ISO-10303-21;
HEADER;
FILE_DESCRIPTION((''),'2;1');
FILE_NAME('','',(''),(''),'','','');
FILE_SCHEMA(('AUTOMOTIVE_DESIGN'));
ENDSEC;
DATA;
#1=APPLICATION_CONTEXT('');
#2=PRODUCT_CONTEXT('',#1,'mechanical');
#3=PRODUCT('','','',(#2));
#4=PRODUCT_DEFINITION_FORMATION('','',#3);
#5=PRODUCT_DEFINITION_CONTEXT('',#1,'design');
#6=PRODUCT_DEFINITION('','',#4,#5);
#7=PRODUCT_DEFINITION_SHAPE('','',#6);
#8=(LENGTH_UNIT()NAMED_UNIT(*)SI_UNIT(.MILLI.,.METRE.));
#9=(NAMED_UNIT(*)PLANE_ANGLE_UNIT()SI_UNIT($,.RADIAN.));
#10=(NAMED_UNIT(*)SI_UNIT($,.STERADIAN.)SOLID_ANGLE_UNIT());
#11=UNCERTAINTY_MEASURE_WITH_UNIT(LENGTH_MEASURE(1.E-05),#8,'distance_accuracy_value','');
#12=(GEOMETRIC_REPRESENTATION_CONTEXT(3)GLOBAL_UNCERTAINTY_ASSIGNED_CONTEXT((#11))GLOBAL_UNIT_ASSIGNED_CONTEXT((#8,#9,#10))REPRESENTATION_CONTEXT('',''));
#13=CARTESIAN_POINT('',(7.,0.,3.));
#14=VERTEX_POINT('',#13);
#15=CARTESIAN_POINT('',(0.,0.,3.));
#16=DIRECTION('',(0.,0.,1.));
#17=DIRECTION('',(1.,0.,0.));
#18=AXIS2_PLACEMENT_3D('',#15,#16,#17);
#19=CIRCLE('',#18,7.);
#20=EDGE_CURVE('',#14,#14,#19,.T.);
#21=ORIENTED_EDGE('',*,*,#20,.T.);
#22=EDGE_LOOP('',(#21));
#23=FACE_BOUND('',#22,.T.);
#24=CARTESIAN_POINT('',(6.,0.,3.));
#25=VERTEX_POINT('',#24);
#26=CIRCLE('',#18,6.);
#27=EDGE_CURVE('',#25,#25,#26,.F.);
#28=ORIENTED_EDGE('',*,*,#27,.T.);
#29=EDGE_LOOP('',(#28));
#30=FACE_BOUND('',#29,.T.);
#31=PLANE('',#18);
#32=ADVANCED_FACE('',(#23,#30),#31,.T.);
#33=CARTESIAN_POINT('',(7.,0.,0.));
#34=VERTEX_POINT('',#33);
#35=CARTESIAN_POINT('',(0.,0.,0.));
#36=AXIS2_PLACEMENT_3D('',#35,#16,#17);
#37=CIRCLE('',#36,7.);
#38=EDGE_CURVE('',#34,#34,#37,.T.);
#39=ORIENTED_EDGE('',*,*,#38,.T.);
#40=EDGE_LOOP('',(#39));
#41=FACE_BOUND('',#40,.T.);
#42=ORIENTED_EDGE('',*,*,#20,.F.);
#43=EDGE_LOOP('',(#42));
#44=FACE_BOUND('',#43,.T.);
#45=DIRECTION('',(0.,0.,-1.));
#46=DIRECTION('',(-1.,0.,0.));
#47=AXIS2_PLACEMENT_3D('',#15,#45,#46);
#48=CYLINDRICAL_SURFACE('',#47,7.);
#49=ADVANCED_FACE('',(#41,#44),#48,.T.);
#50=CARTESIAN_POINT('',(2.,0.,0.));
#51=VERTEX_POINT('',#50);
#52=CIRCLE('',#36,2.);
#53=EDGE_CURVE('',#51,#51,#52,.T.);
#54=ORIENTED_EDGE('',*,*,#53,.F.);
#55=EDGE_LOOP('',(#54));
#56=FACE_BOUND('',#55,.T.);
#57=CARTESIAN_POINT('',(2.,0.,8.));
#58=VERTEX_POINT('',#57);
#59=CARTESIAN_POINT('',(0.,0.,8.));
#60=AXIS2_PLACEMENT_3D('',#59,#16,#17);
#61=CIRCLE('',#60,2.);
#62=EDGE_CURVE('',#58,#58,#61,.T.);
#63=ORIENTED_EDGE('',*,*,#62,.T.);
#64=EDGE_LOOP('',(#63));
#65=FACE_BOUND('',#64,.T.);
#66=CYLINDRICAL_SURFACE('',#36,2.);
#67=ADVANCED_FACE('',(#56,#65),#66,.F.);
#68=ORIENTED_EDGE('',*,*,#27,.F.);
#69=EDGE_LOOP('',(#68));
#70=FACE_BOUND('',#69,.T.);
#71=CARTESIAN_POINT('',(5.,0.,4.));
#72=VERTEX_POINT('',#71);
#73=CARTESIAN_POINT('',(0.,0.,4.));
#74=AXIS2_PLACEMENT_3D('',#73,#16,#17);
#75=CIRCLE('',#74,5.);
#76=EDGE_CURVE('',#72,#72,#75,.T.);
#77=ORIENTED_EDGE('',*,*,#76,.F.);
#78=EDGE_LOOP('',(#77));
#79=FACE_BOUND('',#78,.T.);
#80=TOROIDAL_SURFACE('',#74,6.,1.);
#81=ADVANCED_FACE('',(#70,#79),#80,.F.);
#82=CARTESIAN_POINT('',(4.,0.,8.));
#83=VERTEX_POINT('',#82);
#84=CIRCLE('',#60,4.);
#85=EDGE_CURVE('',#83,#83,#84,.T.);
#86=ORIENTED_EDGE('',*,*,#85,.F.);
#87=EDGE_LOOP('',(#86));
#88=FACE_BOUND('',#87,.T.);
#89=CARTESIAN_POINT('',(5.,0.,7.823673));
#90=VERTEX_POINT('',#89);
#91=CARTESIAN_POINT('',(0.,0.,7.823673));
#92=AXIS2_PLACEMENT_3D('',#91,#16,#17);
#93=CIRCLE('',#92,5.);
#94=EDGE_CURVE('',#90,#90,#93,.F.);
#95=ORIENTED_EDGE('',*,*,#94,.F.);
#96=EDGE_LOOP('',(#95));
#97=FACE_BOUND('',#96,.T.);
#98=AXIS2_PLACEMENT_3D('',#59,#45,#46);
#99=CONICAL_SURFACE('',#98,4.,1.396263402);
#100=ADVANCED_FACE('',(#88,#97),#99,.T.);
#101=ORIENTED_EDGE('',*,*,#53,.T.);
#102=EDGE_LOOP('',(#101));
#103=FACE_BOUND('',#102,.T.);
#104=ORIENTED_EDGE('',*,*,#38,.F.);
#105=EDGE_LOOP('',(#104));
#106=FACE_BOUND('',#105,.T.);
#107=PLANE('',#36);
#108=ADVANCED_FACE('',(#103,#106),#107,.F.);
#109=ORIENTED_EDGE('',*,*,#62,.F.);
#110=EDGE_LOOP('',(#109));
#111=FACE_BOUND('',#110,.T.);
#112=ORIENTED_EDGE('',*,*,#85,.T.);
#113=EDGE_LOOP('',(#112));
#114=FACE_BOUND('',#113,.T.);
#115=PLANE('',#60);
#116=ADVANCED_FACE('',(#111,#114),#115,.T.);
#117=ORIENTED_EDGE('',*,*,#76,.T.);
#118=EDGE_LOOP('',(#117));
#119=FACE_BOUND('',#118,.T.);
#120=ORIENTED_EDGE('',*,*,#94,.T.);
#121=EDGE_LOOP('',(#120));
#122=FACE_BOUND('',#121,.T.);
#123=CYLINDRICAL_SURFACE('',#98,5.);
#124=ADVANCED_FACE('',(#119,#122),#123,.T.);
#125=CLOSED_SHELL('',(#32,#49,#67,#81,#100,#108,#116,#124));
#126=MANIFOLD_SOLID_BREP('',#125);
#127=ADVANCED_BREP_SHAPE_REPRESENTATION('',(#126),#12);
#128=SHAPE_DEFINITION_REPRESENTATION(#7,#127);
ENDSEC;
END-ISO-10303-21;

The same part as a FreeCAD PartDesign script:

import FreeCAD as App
import Part
import Sketcher

V = App.Vector


def edges_at(feature, points):
    """Names of the edges that pass closest to the given points."""
    edges = feature.Shape.Edges
    near = lambda p: min(range(len(edges)), key=lambda i: edges[i].distToShape(Part.Vertex(*p))[0])
    return sorted({f"Edge{near(p) + 1}" for p in points})

doc = App.newDocument("Part")
body = doc.addObject("PartDesign::Body", "Body")

# Sketch on XY plane
sketch1 = body.newObject("Sketcher::SketchObject", "Sketch")
sketch1.AttachmentSupport = (doc.getObject("XY_Plane"), [""])
sketch1.MapMode = "FlatFace"
sketch1.addGeometry(Part.Circle(V(0, 0, 0), V(0, 0, 1), 7), False)
sketch1.addConstraint([
    Sketcher.Constraint("Coincident", 0, 3, -1, 1),
    Sketcher.Constraint("Diameter", 0, 14.0),
])
pad1 = body.newObject("PartDesign::Pad", "Pad")
pad1.Profile = sketch1
pad1.Length = 3

# Sketch on XY plane
sketch2 = body.newObject("Sketcher::SketchObject", "Sketch001")
sketch2.AttachmentSupport = (doc.getObject("XY_Plane"), [""])
sketch2.MapMode = "FlatFace"
sketch2.AttachmentOffset = App.Placement(V(0, 0, 3), App.Rotation())
sketch2.addGeometry(Part.Circle(V(0, 0, 0), V(0, 0, 1), 5), False)
sketch2.addConstraint([
    Sketcher.Constraint("Coincident", 0, 3, -1, 1),
    Sketcher.Constraint("Diameter", 0, 10.0),
])
pad2 = body.newObject("PartDesign::Pad", "Pad001")
pad2.Profile = sketch2
pad2.Length = 5

# Sketch on XY plane
sketch3 = body.newObject("Sketcher::SketchObject", "Sketch002")
sketch3.AttachmentSupport = (doc.getObject("XY_Plane"), [""])
sketch3.MapMode = "FlatFace"
sketch3.AttachmentOffset = App.Placement(V(0, 0, 8), App.Rotation())
sketch3.addGeometry(Part.Circle(V(0, 0, 0), V(0, 0, 1), 2), False)
sketch3.addConstraint([
    Sketcher.Constraint("Coincident", 0, 3, -1, 1),
    Sketcher.Constraint("Diameter", 0, 4.0),
])
pocket1 = body.newObject("PartDesign::Pocket", "Pocket")
pocket1.Profile = sketch3
pocket1.Type = "ThroughAll"
doc.recompute()

fillet = body.newObject("PartDesign::Fillet", "Fillet")
fillet.Base = (pocket1, edges_at(pocket1, [(-5, 0, 3)]))
fillet.Radius = 1
doc.recompute()

chamfer = body.newObject("PartDesign::Chamfer", "Chamfer")
chamfer.Base = (fillet, edges_at(fillet, [(-5, 0, 8)]))
chamfer.ChamferType = "Two distances"
chamfer.Size = 1
chamfer.Size2 = 0.176327
chamfer.FlipDirection = True

doc.recompute()
